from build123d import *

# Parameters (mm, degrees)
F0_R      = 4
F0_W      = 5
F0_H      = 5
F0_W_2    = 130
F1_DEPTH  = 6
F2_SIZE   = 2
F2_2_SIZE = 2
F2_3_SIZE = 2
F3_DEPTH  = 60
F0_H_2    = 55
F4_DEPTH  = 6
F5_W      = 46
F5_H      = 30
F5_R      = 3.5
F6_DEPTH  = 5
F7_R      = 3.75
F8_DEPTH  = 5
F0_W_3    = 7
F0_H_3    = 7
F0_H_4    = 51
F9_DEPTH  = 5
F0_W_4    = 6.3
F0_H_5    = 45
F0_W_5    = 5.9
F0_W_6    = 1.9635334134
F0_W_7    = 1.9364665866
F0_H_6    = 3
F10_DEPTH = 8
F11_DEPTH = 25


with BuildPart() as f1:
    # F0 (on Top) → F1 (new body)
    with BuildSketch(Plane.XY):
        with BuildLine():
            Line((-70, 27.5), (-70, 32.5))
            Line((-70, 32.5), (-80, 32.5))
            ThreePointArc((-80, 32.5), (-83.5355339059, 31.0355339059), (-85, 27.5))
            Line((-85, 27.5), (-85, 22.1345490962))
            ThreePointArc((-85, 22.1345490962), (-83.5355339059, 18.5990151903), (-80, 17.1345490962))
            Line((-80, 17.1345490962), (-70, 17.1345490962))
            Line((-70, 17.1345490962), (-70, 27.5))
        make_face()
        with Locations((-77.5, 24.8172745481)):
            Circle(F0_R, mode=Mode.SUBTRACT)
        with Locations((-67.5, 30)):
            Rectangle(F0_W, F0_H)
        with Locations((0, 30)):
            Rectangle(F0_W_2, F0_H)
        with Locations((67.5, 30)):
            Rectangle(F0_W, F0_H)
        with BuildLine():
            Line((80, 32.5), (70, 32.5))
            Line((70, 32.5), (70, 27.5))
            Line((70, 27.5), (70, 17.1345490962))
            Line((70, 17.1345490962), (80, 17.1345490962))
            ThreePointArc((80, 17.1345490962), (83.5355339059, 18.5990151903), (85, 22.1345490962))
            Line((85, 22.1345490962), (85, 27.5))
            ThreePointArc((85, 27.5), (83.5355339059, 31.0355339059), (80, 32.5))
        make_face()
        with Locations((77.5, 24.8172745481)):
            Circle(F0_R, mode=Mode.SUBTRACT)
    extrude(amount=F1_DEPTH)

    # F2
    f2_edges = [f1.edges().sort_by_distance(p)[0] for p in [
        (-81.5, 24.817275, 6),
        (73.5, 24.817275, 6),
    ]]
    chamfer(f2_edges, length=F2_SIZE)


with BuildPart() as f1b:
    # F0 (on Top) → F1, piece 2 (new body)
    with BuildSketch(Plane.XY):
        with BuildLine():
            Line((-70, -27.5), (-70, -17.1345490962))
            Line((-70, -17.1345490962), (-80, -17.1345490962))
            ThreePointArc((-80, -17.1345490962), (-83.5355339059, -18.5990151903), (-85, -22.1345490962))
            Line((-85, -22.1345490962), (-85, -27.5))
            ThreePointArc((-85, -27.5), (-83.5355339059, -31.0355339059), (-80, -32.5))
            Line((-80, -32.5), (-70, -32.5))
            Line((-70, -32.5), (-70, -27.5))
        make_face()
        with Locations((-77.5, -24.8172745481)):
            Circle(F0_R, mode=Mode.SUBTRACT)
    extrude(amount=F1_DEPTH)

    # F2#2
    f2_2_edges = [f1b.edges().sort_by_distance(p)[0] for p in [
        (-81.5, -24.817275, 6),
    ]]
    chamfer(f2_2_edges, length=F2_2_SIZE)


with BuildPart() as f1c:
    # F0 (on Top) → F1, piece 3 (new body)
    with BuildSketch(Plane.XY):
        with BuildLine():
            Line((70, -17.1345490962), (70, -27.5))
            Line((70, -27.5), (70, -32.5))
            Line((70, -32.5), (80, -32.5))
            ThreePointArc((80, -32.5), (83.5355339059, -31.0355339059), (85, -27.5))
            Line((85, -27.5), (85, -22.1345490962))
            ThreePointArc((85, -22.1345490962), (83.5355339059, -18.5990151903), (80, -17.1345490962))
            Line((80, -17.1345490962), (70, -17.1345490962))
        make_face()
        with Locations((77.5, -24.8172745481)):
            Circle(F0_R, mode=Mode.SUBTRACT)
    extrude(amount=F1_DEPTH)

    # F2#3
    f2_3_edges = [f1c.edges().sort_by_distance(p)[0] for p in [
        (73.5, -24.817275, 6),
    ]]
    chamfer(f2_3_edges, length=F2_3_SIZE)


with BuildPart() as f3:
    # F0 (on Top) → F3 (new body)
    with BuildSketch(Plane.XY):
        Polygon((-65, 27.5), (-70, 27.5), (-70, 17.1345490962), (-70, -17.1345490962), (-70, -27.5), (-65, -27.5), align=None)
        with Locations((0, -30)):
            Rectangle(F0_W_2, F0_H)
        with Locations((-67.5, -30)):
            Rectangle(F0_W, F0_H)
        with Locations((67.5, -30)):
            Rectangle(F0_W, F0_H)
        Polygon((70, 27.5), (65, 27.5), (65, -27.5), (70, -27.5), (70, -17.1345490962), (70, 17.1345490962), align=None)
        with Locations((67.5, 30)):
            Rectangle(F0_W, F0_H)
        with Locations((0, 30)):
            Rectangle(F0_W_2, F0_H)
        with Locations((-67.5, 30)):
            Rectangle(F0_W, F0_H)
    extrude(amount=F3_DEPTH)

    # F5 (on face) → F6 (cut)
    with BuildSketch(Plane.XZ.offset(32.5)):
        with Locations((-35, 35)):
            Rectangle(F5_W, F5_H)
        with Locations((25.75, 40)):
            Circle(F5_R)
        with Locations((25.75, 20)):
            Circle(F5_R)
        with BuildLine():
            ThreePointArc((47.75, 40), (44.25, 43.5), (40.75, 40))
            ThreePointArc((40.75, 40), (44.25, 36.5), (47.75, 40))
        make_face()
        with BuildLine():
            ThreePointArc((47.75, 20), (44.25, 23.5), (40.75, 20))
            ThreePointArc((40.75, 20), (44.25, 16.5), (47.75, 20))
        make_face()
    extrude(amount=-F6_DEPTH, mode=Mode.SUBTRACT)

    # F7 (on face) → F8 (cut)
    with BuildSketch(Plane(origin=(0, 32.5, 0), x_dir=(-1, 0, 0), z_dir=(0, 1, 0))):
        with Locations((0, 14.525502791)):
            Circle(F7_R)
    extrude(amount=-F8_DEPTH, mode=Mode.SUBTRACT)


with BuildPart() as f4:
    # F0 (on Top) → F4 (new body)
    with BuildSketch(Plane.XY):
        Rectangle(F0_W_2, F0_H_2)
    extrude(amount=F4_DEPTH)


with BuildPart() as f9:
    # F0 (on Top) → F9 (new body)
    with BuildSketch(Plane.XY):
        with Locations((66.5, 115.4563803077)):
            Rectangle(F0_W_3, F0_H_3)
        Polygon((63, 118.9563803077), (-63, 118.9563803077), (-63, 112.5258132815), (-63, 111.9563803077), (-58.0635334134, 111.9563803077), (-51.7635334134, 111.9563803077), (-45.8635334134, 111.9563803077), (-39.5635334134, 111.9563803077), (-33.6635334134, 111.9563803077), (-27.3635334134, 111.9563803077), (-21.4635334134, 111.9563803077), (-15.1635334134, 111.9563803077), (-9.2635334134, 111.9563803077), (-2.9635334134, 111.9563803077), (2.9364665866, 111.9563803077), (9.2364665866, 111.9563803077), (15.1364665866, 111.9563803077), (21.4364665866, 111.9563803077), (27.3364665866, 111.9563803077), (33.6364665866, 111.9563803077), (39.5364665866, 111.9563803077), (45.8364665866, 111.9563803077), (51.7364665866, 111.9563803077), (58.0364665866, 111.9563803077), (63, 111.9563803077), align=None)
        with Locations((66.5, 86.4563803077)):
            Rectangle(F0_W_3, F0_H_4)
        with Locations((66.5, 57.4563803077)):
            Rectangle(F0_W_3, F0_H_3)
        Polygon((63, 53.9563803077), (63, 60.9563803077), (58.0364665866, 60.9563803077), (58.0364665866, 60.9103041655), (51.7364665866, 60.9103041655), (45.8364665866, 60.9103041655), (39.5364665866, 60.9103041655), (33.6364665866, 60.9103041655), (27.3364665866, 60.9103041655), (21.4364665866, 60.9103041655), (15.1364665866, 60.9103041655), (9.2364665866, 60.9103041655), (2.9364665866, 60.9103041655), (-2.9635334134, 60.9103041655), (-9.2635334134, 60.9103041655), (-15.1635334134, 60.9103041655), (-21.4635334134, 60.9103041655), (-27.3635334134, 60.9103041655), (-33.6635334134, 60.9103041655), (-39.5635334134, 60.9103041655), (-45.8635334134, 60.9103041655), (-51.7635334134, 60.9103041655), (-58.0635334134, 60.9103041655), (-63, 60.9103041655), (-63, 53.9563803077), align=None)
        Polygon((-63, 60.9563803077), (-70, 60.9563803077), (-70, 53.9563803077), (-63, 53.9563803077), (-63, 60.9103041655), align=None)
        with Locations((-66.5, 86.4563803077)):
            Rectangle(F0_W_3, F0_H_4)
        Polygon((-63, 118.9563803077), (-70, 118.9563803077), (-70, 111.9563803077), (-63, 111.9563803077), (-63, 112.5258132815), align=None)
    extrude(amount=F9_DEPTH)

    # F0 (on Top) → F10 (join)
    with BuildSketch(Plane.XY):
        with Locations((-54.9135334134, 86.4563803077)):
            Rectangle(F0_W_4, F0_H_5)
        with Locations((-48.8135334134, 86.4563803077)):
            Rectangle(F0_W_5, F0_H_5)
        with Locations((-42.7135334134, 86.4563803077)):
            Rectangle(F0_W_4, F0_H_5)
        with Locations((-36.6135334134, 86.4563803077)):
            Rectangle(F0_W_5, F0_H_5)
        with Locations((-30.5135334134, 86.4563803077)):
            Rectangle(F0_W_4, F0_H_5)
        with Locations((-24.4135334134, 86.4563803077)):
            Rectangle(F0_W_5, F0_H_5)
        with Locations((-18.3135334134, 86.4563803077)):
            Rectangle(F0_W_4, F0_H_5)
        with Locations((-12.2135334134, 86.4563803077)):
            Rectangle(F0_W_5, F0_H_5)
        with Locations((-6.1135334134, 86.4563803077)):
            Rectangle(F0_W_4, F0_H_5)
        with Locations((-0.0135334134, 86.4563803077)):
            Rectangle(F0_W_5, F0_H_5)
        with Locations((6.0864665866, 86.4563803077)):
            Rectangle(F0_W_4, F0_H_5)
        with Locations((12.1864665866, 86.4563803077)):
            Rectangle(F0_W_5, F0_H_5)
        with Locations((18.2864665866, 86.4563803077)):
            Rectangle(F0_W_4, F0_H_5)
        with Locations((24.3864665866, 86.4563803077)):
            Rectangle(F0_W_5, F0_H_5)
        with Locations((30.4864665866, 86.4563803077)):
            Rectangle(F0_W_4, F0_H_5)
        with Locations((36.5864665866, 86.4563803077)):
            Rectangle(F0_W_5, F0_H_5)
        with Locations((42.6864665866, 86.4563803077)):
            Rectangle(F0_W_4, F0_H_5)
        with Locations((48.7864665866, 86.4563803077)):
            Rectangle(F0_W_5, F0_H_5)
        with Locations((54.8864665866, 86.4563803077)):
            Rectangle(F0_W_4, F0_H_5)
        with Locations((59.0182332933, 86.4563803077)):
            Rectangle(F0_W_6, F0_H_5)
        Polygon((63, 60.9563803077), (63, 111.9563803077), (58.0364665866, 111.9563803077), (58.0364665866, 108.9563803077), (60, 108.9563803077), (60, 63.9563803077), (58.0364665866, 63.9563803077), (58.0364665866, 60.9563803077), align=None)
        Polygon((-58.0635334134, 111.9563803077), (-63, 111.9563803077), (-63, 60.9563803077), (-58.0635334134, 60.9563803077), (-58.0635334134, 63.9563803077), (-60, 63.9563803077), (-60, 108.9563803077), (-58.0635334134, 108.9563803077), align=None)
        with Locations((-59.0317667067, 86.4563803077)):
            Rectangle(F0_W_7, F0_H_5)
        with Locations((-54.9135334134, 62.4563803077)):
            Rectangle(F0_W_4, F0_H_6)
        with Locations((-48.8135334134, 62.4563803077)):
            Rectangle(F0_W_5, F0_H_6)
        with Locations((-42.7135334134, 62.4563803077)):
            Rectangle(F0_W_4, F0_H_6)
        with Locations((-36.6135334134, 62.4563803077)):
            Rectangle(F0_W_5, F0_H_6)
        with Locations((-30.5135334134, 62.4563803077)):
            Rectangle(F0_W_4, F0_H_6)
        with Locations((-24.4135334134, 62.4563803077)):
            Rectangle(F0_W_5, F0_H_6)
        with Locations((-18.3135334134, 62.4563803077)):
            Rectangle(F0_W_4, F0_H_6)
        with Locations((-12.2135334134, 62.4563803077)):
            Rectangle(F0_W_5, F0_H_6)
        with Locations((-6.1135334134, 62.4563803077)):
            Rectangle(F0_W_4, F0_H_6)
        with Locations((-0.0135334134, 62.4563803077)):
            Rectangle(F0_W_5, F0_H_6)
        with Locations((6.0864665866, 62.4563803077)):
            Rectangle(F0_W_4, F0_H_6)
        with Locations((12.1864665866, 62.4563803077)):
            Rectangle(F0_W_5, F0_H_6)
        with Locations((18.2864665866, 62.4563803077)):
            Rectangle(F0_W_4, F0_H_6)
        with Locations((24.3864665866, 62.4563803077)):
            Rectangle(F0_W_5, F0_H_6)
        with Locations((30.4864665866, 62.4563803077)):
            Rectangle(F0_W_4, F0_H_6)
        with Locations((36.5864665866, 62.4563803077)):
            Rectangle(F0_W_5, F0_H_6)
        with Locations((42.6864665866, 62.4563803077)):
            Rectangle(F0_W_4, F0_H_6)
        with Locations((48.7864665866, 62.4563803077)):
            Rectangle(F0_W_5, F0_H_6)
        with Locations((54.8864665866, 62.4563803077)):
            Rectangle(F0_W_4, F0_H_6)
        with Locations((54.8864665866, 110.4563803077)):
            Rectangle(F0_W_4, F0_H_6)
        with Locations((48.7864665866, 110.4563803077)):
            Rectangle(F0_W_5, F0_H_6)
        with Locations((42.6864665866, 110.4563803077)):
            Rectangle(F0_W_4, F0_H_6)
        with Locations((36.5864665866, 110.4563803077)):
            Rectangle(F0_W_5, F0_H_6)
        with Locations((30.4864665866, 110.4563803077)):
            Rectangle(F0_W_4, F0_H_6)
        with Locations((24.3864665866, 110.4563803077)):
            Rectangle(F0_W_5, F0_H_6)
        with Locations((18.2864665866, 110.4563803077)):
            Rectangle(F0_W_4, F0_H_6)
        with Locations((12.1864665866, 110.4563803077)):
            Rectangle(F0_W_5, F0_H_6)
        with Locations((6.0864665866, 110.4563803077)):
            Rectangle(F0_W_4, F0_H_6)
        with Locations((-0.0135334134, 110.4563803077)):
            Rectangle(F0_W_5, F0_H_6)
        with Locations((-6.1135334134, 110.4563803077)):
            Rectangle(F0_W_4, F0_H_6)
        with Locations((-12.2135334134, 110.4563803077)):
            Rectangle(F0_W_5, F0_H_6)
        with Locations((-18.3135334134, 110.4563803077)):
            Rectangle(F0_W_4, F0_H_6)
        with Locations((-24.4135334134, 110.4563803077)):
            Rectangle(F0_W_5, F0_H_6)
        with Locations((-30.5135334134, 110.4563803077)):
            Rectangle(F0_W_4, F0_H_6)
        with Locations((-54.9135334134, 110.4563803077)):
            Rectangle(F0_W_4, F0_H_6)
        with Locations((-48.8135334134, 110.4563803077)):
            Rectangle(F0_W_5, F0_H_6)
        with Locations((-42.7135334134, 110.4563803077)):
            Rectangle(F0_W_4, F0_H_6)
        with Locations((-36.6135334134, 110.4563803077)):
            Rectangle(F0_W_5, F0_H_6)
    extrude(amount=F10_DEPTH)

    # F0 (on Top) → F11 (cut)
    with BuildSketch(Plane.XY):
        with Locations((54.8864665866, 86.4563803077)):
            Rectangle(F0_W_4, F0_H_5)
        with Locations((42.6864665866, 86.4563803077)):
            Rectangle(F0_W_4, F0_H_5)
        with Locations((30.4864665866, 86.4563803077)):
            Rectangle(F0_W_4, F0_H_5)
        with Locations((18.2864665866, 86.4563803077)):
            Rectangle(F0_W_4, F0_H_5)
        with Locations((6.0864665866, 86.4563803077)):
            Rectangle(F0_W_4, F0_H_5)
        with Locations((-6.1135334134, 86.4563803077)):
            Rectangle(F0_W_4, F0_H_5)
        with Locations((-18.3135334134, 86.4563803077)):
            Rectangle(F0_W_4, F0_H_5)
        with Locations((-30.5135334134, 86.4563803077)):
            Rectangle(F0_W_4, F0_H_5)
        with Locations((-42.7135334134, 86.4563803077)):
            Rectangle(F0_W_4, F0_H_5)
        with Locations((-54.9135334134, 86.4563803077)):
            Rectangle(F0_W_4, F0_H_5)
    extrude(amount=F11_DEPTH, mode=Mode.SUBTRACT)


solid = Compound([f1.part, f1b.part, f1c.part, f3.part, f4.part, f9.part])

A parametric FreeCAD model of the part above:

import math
import FreeCAD as App
import Part
import Sketcher
Q = App.Units.Quantity


def edges_at(feature, points):
    """Names of the edges that pass closest to the given points."""
    edges = feature.Shape.Edges
    near = lambda p: min(range(len(edges)), key=lambda i: edges[i].distToShape(Part.Vertex(*p))[0])
    return sorted({f"Edge{near(p) + 1}" for p in points})

doc = App.newDocument("Part")
body = doc.addObject("PartDesign::Body", "Body")

sketch1 = body.newObject("Sketcher::SketchObject", "Sketch")
sketch1.AttachmentSupport = (doc.getObject("XY_Plane"), [""])
sketch1.MapMode = "FlatFace"
sketch1.addGeometry([
    Part.ArcOfCircle(Part.Circle(App.Vector(-80, 27.5, 0), App.Vector(0, 0, 1), 5), math.radians(90), math.radians(180)),
    Part.LineSegment(App.Vector(-85, 27.5, 0), App.Vector(-85, 22.134549, 0)),
    Part.ArcOfCircle(Part.Circle(App.Vector(-80, 22.134549, 0), App.Vector(0, 0, 1), 5), math.radians(180), math.radians(270)),
    Part.LineSegment(App.Vector(-80, 17.134549, 0), App.Vector(-70, 17.134549, 0)),
    Part.LineSegment(App.Vector(-70, 17.134549, 0), App.Vector(-70, 27.5, 0)),
    Part.LineSegment(App.Vector(-70, 27.5, 0), App.Vector(70, 27.5, 0)),
    Part.LineSegment(App.Vector(70, 27.5, 0), App.Vector(70, 17.134549, 0)),
    Part.LineSegment(App.Vector(70, 17.134549, 0), App.Vector(80, 17.134549, 0)),
    Part.ArcOfCircle(Part.Circle(App.Vector(80, 22.134549, 0), App.Vector(0, 0, 1), 5), math.radians(-90), math.radians(0)),
    Part.LineSegment(App.Vector(85, 22.134549, 0), App.Vector(85, 27.5, 0)),
    Part.ArcOfCircle(Part.Circle(App.Vector(80, 27.5, 0), App.Vector(0, 0, 1), 5), math.radians(0), math.radians(90)),
    Part.LineSegment(App.Vector(80, 32.5, 0), App.Vector(-80, 32.5, 0)),
    Part.Circle(App.Vector(-77.5, 24.817275, 0), App.Vector(0, 0, 1), 4),
    Part.Circle(App.Vector(77.5, 24.817275, 0), App.Vector(0, 0, 1), 4),
], False)
sketch1.addConstraint([
    Sketcher.Constraint("Tangent", 0, 2, 1, 1),
    Sketcher.Constraint("Tangent", 1, 2, 2, 1),
    Sketcher.Constraint("Tangent", 2, 2, 3, 1),
    Sketcher.Constraint("Coincident", 3, 2, 4, 1),
    Sketcher.Constraint("Coincident", 4, 2, 5, 1),
    Sketcher.Constraint("Coincident", 5, 2, 6, 1),
    Sketcher.Constraint("Coincident", 6, 2, 7, 1),
    Sketcher.Constraint("Tangent", 7, 2, 8, 1),
    Sketcher.Constraint("Tangent", 8, 2, 9, 1),
    Sketcher.Constraint("Tangent", 9, 2, 10, 1),
    Sketcher.Constraint("Tangent", 10, 2, 11, 1),
    Sketcher.Constraint("Tangent", 11, 2, 0, 1),
    Sketcher.Constraint("Vertical", 1),
    Sketcher.Constraint("Horizontal", 3),
    Sketcher.Constraint("Vertical", 4),
    Sketcher.Constraint("Horizontal", 5),
    Sketcher.Constraint("Vertical", 6),
    Sketcher.Constraint("Horizontal", 7),
    Sketcher.Constraint("Vertical", 9),
    Sketcher.Constraint("Horizontal", 11),
    Sketcher.Constraint("Equal", 0, 2),
    Sketcher.Constraint("Equal", 2, 8),
    Sketcher.Constraint("Equal", 8, 10),
    Sketcher.Constraint("Equal", 12, 13),
    Sketcher.Constraint("Symmetric", 2, 3, 8, 3, -2),
    Sketcher.Constraint("Symmetric", 12, 3, 13, 3, -2),
    Sketcher.Constraint("Horizontal", 0, 2, 4, 2),
    Sketcher.Constraint("Equal", 3, 7),
    Sketcher.Constraint("Diameter", 12, Q("8 mm")),
    Sketcher.Constraint("Radius", 0, Q("5 mm")),
    Sketcher.Constraint("DistanceX", 3, 1, 3, 2, Q("10 mm")),
    Sketcher.Constraint("DistanceX", 5, 1, 5, 2, Q("140 mm")),
    Sketcher.Constraint("DistanceX", 12, 3, 13, 3, Q("155 mm")),
    Sketcher.Constraint("DistanceY", -1, 1, 0, 3, Q("27.5 mm")),
    Sketcher.Constraint("DistanceY", 1, 2, 1, 1, Q("5.365451 mm")),
    Sketcher.Constraint("DistanceY", -1, 1, 12, 3, Q("24.817275 mm")),
])
pad1 = body.newObject("PartDesign::Pad", "Pad")
pad1.Profile = sketch1
pad1.Length = 6
doc.recompute()

chamfer = body.newObject("PartDesign::Chamfer", "Chamfer")
chamfer.Base = (pad1, edges_at(pad1, [(-81.5, 24.817, 6), (73.5, 24.817, 6)]))
chamfer.Size = 2
body2 = doc.addObject("PartDesign::Body", "Body001")

sketch2 = body2.newObject("Sketcher::SketchObject", "Sketch001")
sketch2.AttachmentSupport = (doc.getObject("XY_Plane001"), [""])
sketch2.MapMode = "FlatFace"
sketch2.addGeometry([
    Part.LineSegment(App.Vector(-70, -17.134549, 0), App.Vector(-80, -17.134549, 0)),
    Part.ArcOfCircle(Part.Circle(App.Vector(-80, -22.134549, 0), App.Vector(0, 0, 1), 5), math.radians(90), math.radians(180)),
    Part.LineSegment(App.Vector(-85, -22.134549, 0), App.Vector(-85, -27.5, 0)),
    Part.ArcOfCircle(Part.Circle(App.Vector(-80, -27.5, 0), App.Vector(0, 0, 1), 5), math.radians(180), math.radians(270)),
    Part.LineSegment(App.Vector(-80, -32.5, 0), App.Vector(-70, -32.5, 0)),
    Part.LineSegment(App.Vector(-70, -32.5, 0), App.Vector(-70, -17.134549, 0)),
    Part.Circle(App.Vector(-77.5, -24.817275, 0), App.Vector(0, 0, 1), 4),
], False)
sketch2.addConstraint([
    Sketcher.Constraint("Tangent", 0, 2, 1, 1),
    Sketcher.Constraint("Tangent", 1, 2, 2, 1),
    Sketcher.Constraint("Tangent", 2, 2, 3, 1),
    Sketcher.Constraint("Tangent", 3, 2, 4, 1),
    Sketcher.Constraint("Coincident", 4, 2, 5, 1),
    Sketcher.Constraint("Coincident", 5, 2, 0, 1),
    Sketcher.Constraint("Horizontal", 0),
    Sketcher.Constraint("Vertical", 2),
    Sketcher.Constraint("Horizontal", 4),
    Sketcher.Constraint("Vertical", 5),
    Sketcher.Constraint("Equal", 1, 3),
    Sketcher.Constraint("Diameter", 6, Q("8 mm")),
    Sketcher.Constraint("Radius", 1, Q("5 mm")),
    Sketcher.Constraint("DistanceX", 0, 2, 0, 1, Q("10 mm")),
    Sketcher.Constraint("DistanceX", 1, 3, -1, 1, Q("80 mm")),
    Sketcher.Constraint("DistanceY", 3, 3, -1, 1, Q("27.5 mm")),
    Sketcher.Constraint("DistanceX", 6, 3, -1, 1, Q("77.5 mm")),
    Sketcher.Constraint("DistanceY", 2, 2, 2, 1, Q("5.365451 mm")),
    Sketcher.Constraint("DistanceY", 6, 3, -1, 1, Q("24.817275 mm")),
])
pad2 = body2.newObject("PartDesign::Pad", "Pad001")
pad2.Profile = sketch2
pad2.Length = 6
doc.recompute()

chamfer2 = body2.newObject("PartDesign::Chamfer", "Chamfer001")
chamfer2.Base = (pad2, edges_at(pad2, [(-81.5, -24.817, 6)]))
chamfer2.Size = 2
body3 = doc.addObject("PartDesign::Body", "Body002")

sketch3 = body3.newObject("Sketcher::SketchObject", "Sketch002")
sketch3.AttachmentSupport = (doc.getObject("XY_Plane002"), [""])
sketch3.MapMode = "FlatFace"
sketch3.addGeometry([
    Part.LineSegment(App.Vector(70, -17.134549, 0), App.Vector(70, -32.5, 0)),
    Part.LineSegment(App.Vector(70, -32.5, 0), App.Vector(80, -32.5, 0)),
    Part.ArcOfCircle(Part.Circle(App.Vector(80, -27.5, 0), App.Vector(0, 0, 1), 5), math.radians(-90), math.radians(0)),
    Part.LineSegment(App.Vector(85, -27.5, 0), App.Vector(85, -22.134549, 0)),
    Part.ArcOfCircle(Part.Circle(App.Vector(80, -22.134549, 0), App.Vector(0, 0, 1), 5), math.radians(0), math.radians(90)),
    Part.LineSegment(App.Vector(80, -17.134549, 0), App.Vector(70, -17.134549, 0)),
    Part.Circle(App.Vector(77.5, -24.817275, 0), App.Vector(0, 0, 1), 4),
], False)
sketch3.addConstraint([
    Sketcher.Constraint("Coincident", 0, 2, 1, 1),
    Sketcher.Constraint("Tangent", 1, 2, 2, 1),
    Sketcher.Constraint("Tangent", 2, 2, 3, 1),
    Sketcher.Constraint("Tangent", 3, 2, 4, 1),
    Sketcher.Constraint("Tangent", 4, 2, 5, 1),
    Sketcher.Constraint("Coincident", 5, 2, 0, 1),
    Sketcher.Constraint("Vertical", 0),
    Sketcher.Constraint("Horizontal", 1),
    Sketcher.Constraint("Vertical", 3),
    Sketcher.Constraint("Horizontal", 5),
    Sketcher.Constraint("Equal", 2, 4),
    Sketcher.Constraint("Diameter", 6, Q("8 mm")),
    Sketcher.Constraint("Radius", 2, Q("5 mm")),
    Sketcher.Constraint("DistanceX", 1, 1, 1, 2, Q("10 mm")),
    Sketcher.Constraint("DistanceX", -1, 1, 2, 3, Q("80 mm")),
    Sketcher.Constraint("DistanceY", 2, 3, -1, 1, Q("27.5 mm")),
    Sketcher.Constraint("DistanceX", -1, 1, 6, 3, Q("77.5 mm")),
    Sketcher.Constraint("DistanceY", 0, 2, 0, 1, Q("15.365451 mm")),
    Sketcher.Constraint("DistanceY", 6, 3, -1, 1, Q("24.817275 mm")),
])
pad3 = body3.newObject("PartDesign::Pad", "Pad002")
pad3.Profile = sketch3
pad3.Length = 6
doc.recompute()

chamfer3 = body3.newObject("PartDesign::Chamfer", "Chamfer002")
chamfer3.Base = (pad3, edges_at(pad3, [(73.5, -24.817, 6)]))
chamfer3.Size = 2
body4 = doc.addObject("PartDesign::Body", "Body003")

sketch4 = body4.newObject("Sketcher::SketchObject", "Sketch003")
sketch4.AttachmentSupport = (doc.getObject("XY_Plane003"), [""])
sketch4.MapMode = "FlatFace"
sketch4.addGeometry([
    Part.LineSegment(App.Vector(70, 32.5, 0), App.Vector(-70, 32.5, 0)),
    Part.LineSegment(App.Vector(-70, 32.5, 0), App.Vector(-70, -32.5, 0)),
    Part.LineSegment(App.Vector(-70, -32.5, 0), App.Vector(70, -32.5, 0)),
    Part.LineSegment(App.Vector(70, -32.5, 0), App.Vector(70, 32.5, 0)),
    Part.LineSegment(App.Vector(-65, -27.5, 0), App.Vector(-65, 27.5, 0)),
    Part.LineSegment(App.Vector(-65, 27.5, 0), App.Vector(65, 27.5, 0)),
    Part.LineSegment(App.Vector(65, 27.5, 0), App.Vector(65, -27.5, 0)),
    Part.LineSegment(App.Vector(65, -27.5, 0), App.Vector(-65, -27.5, 0)),
], False)
sketch4.addConstraint([
    Sketcher.Constraint("Coincident", 0, 2, 1, 1),
    Sketcher.Constraint("Coincident", 1, 2, 2, 1),
    Sketcher.Constraint("Coincident", 2, 2, 3, 1),
    Sketcher.Constraint("Coincident", 3, 2, 0, 1),
    Sketcher.Constraint("Coincident", 4, 2, 5, 1),
    Sketcher.Constraint("Coincident", 5, 2, 6, 1),
    Sketcher.Constraint("Coincident", 6, 2, 7, 1),
    Sketcher.Constraint("Coincident", 7, 2, 4, 1),
    Sketcher.Constraint("Horizontal", 0),
    Sketcher.Constraint("Vertical", 1),
    Sketcher.Constraint("Horizontal", 2),
    Sketcher.Constraint("Vertical", 3),
    Sketcher.Constraint("Vertical", 4),
    Sketcher.Constraint("Horizontal", 5),
    Sketcher.Constraint("Vertical", 6),
    Sketcher.Constraint("Horizontal", 7),
    Sketcher.Constraint("Symmetric", 0, 2, 2, 2, -1, 1),
    Sketcher.Constraint("Symmetric", 4, 2, 6, 2, -1, 1),
    Sketcher.Constraint("DistanceX", 0, 2, 0, 1, Q("140 mm")),
    Sketcher.Constraint("DistanceX", 5, 1, 5, 2, Q("130 mm")),
    Sketcher.Constraint("DistanceY", 1, 2, 1, 1, Q("65 mm")),
    Sketcher.Constraint("DistanceY", 4, 1, 4, 2, Q("55 mm")),
])
pad4 = body4.newObject("PartDesign::Pad", "Pad003")
pad4.Profile = sketch4
pad4.Length = 60

sketch5 = body4.newObject("Sketcher::SketchObject", "Sketch004")
sketch5.AttachmentSupport = (doc.getObject("XZ_Plane003"), [""])
sketch5.MapMode = "FlatFace"
sketch5.AttachmentOffset = App.Placement(App.Vector(0, 0, 32.5), App.Rotation())
sketch5.addGeometry([
    Part.LineSegment(App.Vector(-58, 50, 0), App.Vector(-58, 20, 0)),
    Part.LineSegment(App.Vector(-58, 20, 0), App.Vector(-12, 20, 0)),
    Part.LineSegment(App.Vector(-12, 20, 0), App.Vector(-12, 50, 0)),
    Part.LineSegment(App.Vector(-12, 50, 0), App.Vector(-58, 50, 0)),
    Part.Circle(App.Vector(25.75, 40, 0), App.Vector(0, 0, 1), 3.5),
    Part.Circle(App.Vector(25.75, 20, 0), App.Vector(0, 0, 1), 3.5),
    Part.Circle(App.Vector(44.25, 40, 0), App.Vector(0, 0, 1), 3.5),
    Part.Circle(App.Vector(44.25, 20, 0), App.Vector(0, 0, 1), 3.5),
], False)
sketch5.addConstraint([
    Sketcher.Constraint("Coincident", 0, 2, 1, 1),
    Sketcher.Constraint("Coincident", 1, 2, 2, 1),
    Sketcher.Constraint("Coincident", 2, 2, 3, 1),
    Sketcher.Constraint("Coincident", 3, 2, 0, 1),
    Sketcher.Constraint("Vertical", 0),
    Sketcher.Constraint("Horizontal", 1),
    Sketcher.Constraint("Vertical", 2),
    Sketcher.Constraint("Horizontal", 3),
    Sketcher.Constraint("Equal", 4, 5),
    Sketcher.Constraint("Equal", 5, 6),
    Sketcher.Constraint("Equal", 6, 7),
    Sketcher.Constraint("Horizontal", 4, 3, 6, 3),
    Sketcher.Constraint("Horizontal", 5, 3, 7, 3),
    Sketcher.Constraint("Horizontal", 7, 3, 0, 2),
    Sketcher.Constraint("Vertical", 4, 3, 5, 3),
    Sketcher.Constraint("Vertical", 6, 3, 7, 3),
    Sketcher.Constraint("Diameter", 4, Q("7 mm")),
    Sketcher.Constraint("DistanceX", 1, 1, 1, 2, Q("46 mm")),
    Sketcher.Constraint("DistanceY", 0, 2, 0, 1, Q("30 mm")),
    Sketcher.Constraint("DistanceY", -1, 1, 4, 3, Q("40 mm")),
    Sketcher.Constraint("DistanceY", -1, 1, 5, 3, Q("20 mm")),
    Sketcher.Constraint("DistanceX", 0, 2, -1, 1, Q("58 mm")),
    Sketcher.Constraint("DistanceX", 4, 3, 6, 3, Q("18.5 mm")),
    Sketcher.Constraint("DistanceX", -1, 1, 4, 3, Q("25.75 mm")),
])
pocket1 = body4.newObject("PartDesign::Pocket", "Pocket")
pocket1.Profile = sketch5
pocket1.Length = 5

sketch6 = body4.newObject("Sketcher::SketchObject", "Sketch005")
sketch6.AttachmentSupport = (doc.getObject("XZ_Plane003"), [""])
sketch6.MapMode = "FlatFace"
sketch6.AttachmentOffset = App.Placement(App.Vector(0, 0, -32.5), App.Rotation())
sketch6.addGeometry(Part.Circle(App.Vector(0, 14.525503, 0), App.Vector(0, 0, 1), 3.75), False)
sketch6.addConstraint([
    Sketcher.Constraint("PointOnObject", 0, 3, -2),
    Sketcher.Constraint("Diameter", 0, Q("7.5 mm")),
    Sketcher.Constraint("DistanceY", -1, 1, 0, 3, Q("14.525503 mm")),
])
pocket2 = body4.newObject("PartDesign::Pocket", "Pocket001")
pocket2.Profile = sketch6
pocket2.Length = 5
pocket2.Reversed = True
body5 = doc.addObject("PartDesign::Body", "Body004")

sketch7 = body5.newObject("Sketcher::SketchObject", "Sketch006")
sketch7.AttachmentSupport = (doc.getObject("XY_Plane004"), [""])
sketch7.MapMode = "FlatFace"
sketch7.addGeometry([
    Part.LineSegment(App.Vector(-65, 27.5, 0), App.Vector(-65, -27.5, 0)),
    Part.LineSegment(App.Vector(-65, -27.5, 0), App.Vector(65, -27.5, 0)),
    Part.LineSegment(App.Vector(65, -27.5, 0), App.Vector(65, 27.5, 0)),
    Part.LineSegment(App.Vector(65, 27.5, 0), App.Vector(-65, 27.5, 0)),
], False)
sketch7.addConstraint([
    Sketcher.Constraint("Coincident", 0, 2, 1, 1),
    Sketcher.Constraint("Coincident", 1, 2, 2, 1),
    Sketcher.Constraint("Coincident", 2, 2, 3, 1),
    Sketcher.Constraint("Coincident", 3, 2, 0, 1),
    Sketcher.Constraint("Vertical", 0),
    Sketcher.Constraint("Horizontal", 1),
    Sketcher.Constraint("Vertical", 2),
    Sketcher.Constraint("Horizontal", 3),
    Sketcher.Constraint("Symmetric", 0, 2, 2, 2, -1, 1),
    Sketcher.Constraint("DistanceX", 1, 1, 1, 2, Q("130 mm")),
    Sketcher.Constraint("DistanceY", 0, 2, 0, 1, Q("55 mm")),
])
pad5 = body5.newObject("PartDesign::Pad", "Pad004")
pad5.Profile = sketch7
pad5.Length = 6
body6 = doc.addObject("PartDesign::Body", "Body005")

sketch8 = body6.newObject("Sketcher::SketchObject", "Sketch007")
sketch8.AttachmentSupport = (doc.getObject("XY_Plane005"), [""])
sketch8.MapMode = "FlatFace"
sketch8.addGeometry([
    Part.LineSegment(App.Vector(70, 118.95638, 0), App.Vector(-70, 118.95638, 0)),
    Part.LineSegment(App.Vector(-70, 118.95638, 0), App.Vector(-70, 53.95638, 0)),
    Part.LineSegment(App.Vector(-70, 53.95638, 0), App.Vector(70, 53.95638, 0)),
    Part.LineSegment(App.Vector(70, 53.95638, 0), App.Vector(70, 118.95638, 0)),
    Part.LineSegment(App.Vector(-63, 60.910304, 0), App.Vector(-63, 111.95638, 0)),
    Part.LineSegment(App.Vector(-63, 111.95638, 0), App.Vector(63, 111.95638, 0)),
    Part.LineSegment(App.Vector(63, 111.95638, 0), App.Vector(63, 60.95638, 0)),
    Part.LineSegment(App.Vector(63, 60.95638, 0), App.Vector(58.036467, 60.95638, 0)),
    Part.LineSegment(App.Vector(58.036467, 60.95638, 0), App.Vector(58.036467, 60.910304, 0)),
    Part.LineSegment(App.Vector(58.036467, 60.910304, 0), App.Vector(-63, 60.910304, 0)),
], False)
sketch8.addConstraint([
    Sketcher.Constraint("Coincident", 0, 2, 1, 1),
    Sketcher.Constraint("Coincident", 1, 2, 2, 1),
    Sketcher.Constraint("Coincident", 2, 2, 3, 1),
    Sketcher.Constraint("Coincident", 3, 2, 0, 1),
    Sketcher.Constraint("Coincident", 4, 2, 5, 1),
    Sketcher.Constraint("Coincident", 5, 2, 6, 1),
    Sketcher.Constraint("Coincident", 6, 2, 7, 1),
    Sketcher.Constraint("Coincident", 7, 2, 8, 1),
    Sketcher.Constraint("Coincident", 8, 2, 9, 1),
    Sketcher.Constraint("Coincident", 9, 2, 4, 1),
    Sketcher.Constraint("Horizontal", 0),
    Sketcher.Constraint("Vertical", 1),
    Sketcher.Constraint("Horizontal", 2),
    Sketcher.Constraint("Vertical", 3),
    Sketcher.Constraint("Vertical", 4),
    Sketcher.Constraint("Horizontal", 5),
    Sketcher.Constraint("Vertical", 6),
    Sketcher.Constraint("Horizontal", 7),
    Sketcher.Constraint("Vertical", 8),
    Sketcher.Constraint("Horizontal", 9),
    Sketcher.Constraint("DistanceX", 0, 2, 0, 1, Q("140 mm")),
    Sketcher.Constraint("DistanceX", 5, 1, 5, 2, Q("126 mm")),
    Sketcher.Constraint("DistanceY", 1, 2, 1, 1, Q("65 mm")),
    Sketcher.Constraint("DistanceY", 6, 2, 6, 1, Q("51 mm")),
    Sketcher.Constraint("DistanceX", 0, 2, -1, 1, Q("70 mm")),
    Sketcher.Constraint("DistanceX", 4, 2, -1, 1, Q("63 mm")),
    Sketcher.Constraint("DistanceY", 4, 2, 0, 2, Q("7 mm")),
    Sketcher.Constraint("DistanceX", 7, 2, 7, 1, Q("4.963533 mm")),
    Sketcher.Constraint("DistanceY", 4, 1, 4, 2, Q("51.046076 mm")),
    Sketcher.Constraint("DistanceY", -1, 1, 0, 2, Q("118.95638 mm")),
])
pad6 = body6.newObject("PartDesign::Pad", "Pad005")
pad6.Profile = sketch8
pad6.Length = 5

sketch9 = body6.newObject("Sketcher::SketchObject", "Sketch008")
sketch9.AttachmentSupport = (doc.getObject("XY_Plane005"), [""])
sketch9.MapMode = "FlatFace"
sketch9.addGeometry([
    Part.LineSegment(App.Vector(63, 60.95638, 0), App.Vector(63, 111.95638, 0)),
    Part.LineSegment(App.Vector(63, 111.95638, 0), App.Vector(-63, 111.95638, 0)),
    Part.LineSegment(App.Vector(-63, 111.95638, 0), App.Vector(-63, 60.95638, 0)),
    Part.LineSegment(App.Vector(-63, 60.95638, 0), App.Vector(63, 60.95638, 0)),
], False)
sketch9.addConstraint([
    Sketcher.Constraint("Coincident", 0, 2, 1, 1),
    Sketcher.Constraint("Coincident", 1, 2, 2, 1),
    Sketcher.Constraint("Coincident", 2, 2, 3, 1),
    Sketcher.Constraint("Coincident", 3, 2, 0, 1),
    Sketcher.Constraint("Vertical", 0),
    Sketcher.Constraint("Horizontal", 1),
    Sketcher.Constraint("Vertical", 2),
    Sketcher.Constraint("Horizontal", 3),
    Sketcher.Constraint("DistanceX", 1, 2, 1, 1, Q("126 mm")),
    Sketcher.Constraint("DistanceY", 0, 1, 0, 2, Q("51 mm")),
    Sketcher.Constraint("DistanceX", -1, 1, 0, 2, Q("63 mm")),
    Sketcher.Constraint("DistanceY", -1, 1, 0, 2, Q("111.95638 mm")),
])
pad7 = body6.newObject("PartDesign::Pad", "Pad006")
pad7.Profile = sketch9
pad7.Length = 8

sketch10 = body6.newObject("Sketcher::SketchObject", "Sketch009")
sketch10.AttachmentSupport = (doc.getObject("XY_Plane005"), [""])
sketch10.MapMode = "FlatFace"
sketch10.addGeometry([
    Part.LineSegment(App.Vector(51.736467, 108.95638, 0), App.Vector(51.736467, 63.95638, 0)),
    Part.LineSegment(App.Vector(51.736467, 63.95638, 0), App.Vector(58.036467, 63.95638, 0)),
    Part.LineSegment(App.Vector(58.036467, 63.95638, 0), App.Vector(58.036467, 108.95638, 0)),
    Part.LineSegment(App.Vector(58.036467, 108.95638, 0), App.Vector(51.736467, 108.95638, 0)),
    Part.LineSegment(App.Vector(39.536467, 108.95638, 0), App.Vector(39.536467, 63.95638, 0)),
    Part.LineSegment(App.Vector(39.536467, 63.95638, 0), App.Vector(45.836467, 63.95638, 0)),
    Part.LineSegment(App.Vector(45.836467, 63.95638, 0), App.Vector(45.836467, 108.95638, 0)),
    Part.LineSegment(App.Vector(45.836467, 108.95638, 0), App.Vector(39.536467, 108.95638, 0)),
    Part.LineSegment(App.Vector(27.336467, 108.95638, 0), App.Vector(27.336467, 63.95638, 0)),
    Part.LineSegment(App.Vector(27.336467, 63.95638, 0), App.Vector(33.636467, 63.95638, 0)),
    Part.LineSegment(App.Vector(33.636467, 63.95638, 0), App.Vector(33.636467, 108.95638, 0)),
    Part.LineSegment(App.Vector(33.636467, 108.95638, 0), App.Vector(27.336467, 108.95638, 0)),
    Part.LineSegment(App.Vector(15.136467, 108.95638, 0), App.Vector(15.136467, 63.95638, 0)),
    Part.LineSegment(App.Vector(15.136467, 63.95638, 0), App.Vector(21.436467, 63.95638, 0)),
    Part.LineSegment(App.Vector(21.436467, 63.95638, 0), App.Vector(21.436467, 108.95638, 0)),
    Part.LineSegment(App.Vector(21.436467, 108.95638, 0), App.Vector(15.136467, 108.95638, 0)),
    Part.LineSegment(App.Vector(2.936467, 108.95638, 0), App.Vector(2.936467, 63.95638, 0)),
    Part.LineSegment(App.Vector(2.936467, 63.95638, 0), App.Vector(9.236467, 63.95638, 0)),
    Part.LineSegment(App.Vector(9.236467, 63.95638, 0), App.Vector(9.236467, 108.95638, 0)),
    Part.LineSegment(App.Vector(9.236467, 108.95638, 0), App.Vector(2.936467, 108.95638, 0)),
    Part.LineSegment(App.Vector(-9.263533, 108.95638, 0), App.Vector(-9.263533, 63.95638, 0)),
    Part.LineSegment(App.Vector(-9.263533, 63.95638, 0), App.Vector(-2.963533, 63.95638, 0)),
    Part.LineSegment(App.Vector(-2.963533, 63.95638, 0), App.Vector(-2.963533, 108.95638, 0)),
    Part.LineSegment(App.Vector(-2.963533, 108.95638, 0), App.Vector(-9.263533, 108.95638, 0)),
    Part.LineSegment(App.Vector(-21.463533, 108.95638, 0), App.Vector(-21.463533, 63.95638, 0)),
    Part.LineSegment(App.Vector(-21.463533, 63.95638, 0), App.Vector(-15.163533, 63.95638, 0)),
    Part.LineSegment(App.Vector(-15.163533, 63.95638, 0), App.Vector(-15.163533, 108.95638, 0)),
    Part.LineSegment(App.Vector(-15.163533, 108.95638, 0), App.Vector(-21.463533, 108.95638, 0)),
    Part.LineSegment(App.Vector(-33.663533, 108.95638, 0), App.Vector(-33.663533, 63.95638, 0)),
    Part.LineSegment(App.Vector(-33.663533, 63.95638, 0), App.Vector(-27.363533, 63.95638, 0)),
    Part.LineSegment(App.Vector(-27.363533, 63.95638, 0), App.Vector(-27.363533, 108.95638, 0)),
    Part.LineSegment(App.Vector(-27.363533, 108.95638, 0), App.Vector(-33.663533, 108.95638, 0)),
    Part.LineSegment(App.Vector(-45.863533, 108.95638, 0), App.Vector(-45.863533, 63.95638, 0)),
    Part.LineSegment(App.Vector(-45.863533, 63.95638, 0), App.Vector(-39.563533, 63.95638, 0)),
    Part.LineSegment(App.Vector(-39.563533, 63.95638, 0), App.Vector(-39.563533, 108.95638, 0)),
    Part.LineSegment(App.Vector(-39.563533, 108.95638, 0), App.Vector(-45.863533, 108.95638, 0)),
    Part.LineSegment(App.Vector(-58.063533, 108.95638, 0), App.Vector(-58.063533, 63.95638, 0)),
    Part.LineSegment(App.Vector(-58.063533, 63.95638, 0), App.Vector(-51.763533, 63.95638, 0)),
    Part.LineSegment(App.Vector(-51.763533, 63.95638, 0), App.Vector(-51.763533, 108.95638, 0)),
    Part.LineSegment(App.Vector(-51.763533, 108.95638, 0), App.Vector(-58.063533, 108.95638, 0)),
], False)
sketch10.addConstraint([
    Sketcher.Constraint("Coincident", 0, 2, 1, 1),
    Sketcher.Constraint("Coincident", 1, 2, 2, 1),
    Sketcher.Constraint("Coincident", 2, 2, 3, 1),
    Sketcher.Constraint("Coincident", 3, 2, 0, 1),
    Sketcher.Constraint("Coincident", 4, 2, 5, 1),
    Sketcher.Constraint("Coincident", 5, 2, 6, 1),
    Sketcher.Constraint("Coincident", 6, 2, 7, 1),
    Sketcher.Constraint("Coincident", 7, 2, 4, 1),
    Sketcher.Constraint("Coincident", 8, 2, 9, 1),
    Sketcher.Constraint("Coincident", 9, 2, 10, 1),
    Sketcher.Constraint("Coincident", 10, 2, 11, 1),
    Sketcher.Constraint("Coincident", 11, 2, 8, 1),
    Sketcher.Constraint("Coincident", 12, 2, 13, 1),
    Sketcher.Constraint("Coincident", 13, 2, 14, 1),
    Sketcher.Constraint("Coincident", 14, 2, 15, 1),
    Sketcher.Constraint("Coincident", 15, 2, 12, 1),
    Sketcher.Constraint("Coincident", 16, 2, 17, 1),
    Sketcher.Constraint("Coincident", 17, 2, 18, 1),
    Sketcher.Constraint("Coincident", 18, 2, 19, 1),
    Sketcher.Constraint("Coincident", 19, 2, 16, 1),
    Sketcher.Constraint("Coincident", 20, 2, 21, 1),
    Sketcher.Constraint("Coincident", 21, 2, 22, 1),
    Sketcher.Constraint("Coincident", 22, 2, 23, 1),
    Sketcher.Constraint("Coincident", 23, 2, 20, 1),
    Sketcher.Constraint("Coincident", 24, 2, 25, 1),
    Sketcher.Constraint("Coincident", 25, 2, 26, 1),
    Sketcher.Constraint("Coincident", 26, 2, 27, 1),
    Sketcher.Constraint("Coincident", 27, 2, 24, 1),
    Sketcher.Constraint("Coincident", 28, 2, 29, 1),
    Sketcher.Constraint("Coincident", 29, 2, 30, 1),
    Sketcher.Constraint("Coincident", 30, 2, 31, 1),
    Sketcher.Constraint("Coincident", 31, 2, 28, 1),
    Sketcher.Constraint("Coincident", 32, 2, 33, 1),
    Sketcher.Constraint("Coincident", 33, 2, 34, 1),
    Sketcher.Constraint("Coincident", 34, 2, 35, 1),
    Sketcher.Constraint("Coincident", 35, 2, 32, 1),
    Sketcher.Constraint("Coincident", 36, 2, 37, 1),
    Sketcher.Constraint("Coincident", 37, 2, 38, 1),
    Sketcher.Constraint("Coincident", 38, 2, 39, 1),
    Sketcher.Constraint("Coincident", 39, 2, 36, 1),
    Sketcher.Constraint("Vertical", 0),
    Sketcher.Constraint("Horizontal", 1),
    Sketcher.Constraint("Vertical", 2),
    Sketcher.Constraint("Horizontal", 3),
    Sketcher.Constraint("Vertical", 4),
    Sketcher.Constraint("Horizontal", 5),
    Sketcher.Constraint("Vertical", 6),
    Sketcher.Constraint("Horizontal", 7),
    Sketcher.Constraint("Vertical", 8),
    Sketcher.Constraint("Horizontal", 9),
    Sketcher.Constraint("Vertical", 10),
    Sketcher.Constraint("Horizontal", 11),
    Sketcher.Constraint("Vertical", 12),
    Sketcher.Constraint("Horizontal", 13),
    Sketcher.Constraint("Vertical", 14),
    Sketcher.Constraint("Horizontal", 15),
    Sketcher.Constraint("Vertical", 16),
    Sketcher.Constraint("Horizontal", 17),
    Sketcher.Constraint("Vertical", 18),
    Sketcher.Constraint("Horizontal", 19),
    Sketcher.Constraint("Vertical", 20),
    Sketcher.Constraint("Horizontal", 21),
    Sketcher.Constraint("Vertical", 22),
    Sketcher.Constraint("Horizontal", 23),
    Sketcher.Constraint("Vertical", 24),
    Sketcher.Constraint("Horizontal", 25),
    Sketcher.Constraint("Vertical", 26),
    Sketcher.Constraint("Horizontal", 27),
    Sketcher.Constraint("Vertical", 28),
    Sketcher.Constraint("Horizontal", 29),
    Sketcher.Constraint("Vertical", 30),
    Sketcher.Constraint("Horizontal", 31),
    Sketcher.Constraint("Vertical", 32),
    Sketcher.Constraint("Horizontal", 33),
    Sketcher.Constraint("Vertical", 34),
    Sketcher.Constraint("Horizontal", 35),
    Sketcher.Constraint("Vertical", 36),
    Sketcher.Constraint("Horizontal", 37),
    Sketcher.Constraint("Vertical", 38),
    Sketcher.Constraint("Horizontal", 39),
    Sketcher.Constraint("Horizontal", 1, 2, 4, 2),
    Sketcher.Constraint("Horizontal", 3, 2, 6, 2),
    Sketcher.Constraint("Horizontal", 5, 2, 8, 2),
    Sketcher.Constraint("Horizontal", 7, 2, 10, 2),
    Sketcher.Constraint("Horizontal", 9, 2, 12, 2),
    Sketcher.Constraint("Horizontal", 11, 2, 14, 2),
    Sketcher.Constraint("Horizontal", 13, 2, 16, 2),
    Sketcher.Constraint("Horizontal", 15, 2, 18, 2),
    Sketcher.Constraint("Horizontal", 17, 2, 20, 2),
    Sketcher.Constraint("Horizontal", 19, 2, 22, 2),
    Sketcher.Constraint("Horizontal", 21, 2, 24, 2),
    Sketcher.Constraint("Horizontal", 23, 2, 26, 2),
    Sketcher.Constraint("Horizontal", 25, 2, 28, 2),
    Sketcher.Constraint("Horizontal", 27, 2, 30, 2),
    Sketcher.Constraint("Horizontal", 29, 2, 32, 2),
    Sketcher.Constraint("Horizontal", 31, 2, 34, 2),
    Sketcher.Constraint("Horizontal", 33, 2, 36, 2),
    Sketcher.Constraint("Horizontal", 35, 2, 38, 2),
    Sketcher.Constraint("Equal", 3, 5),
    Sketcher.Constraint("Equal", 7, 9),
    Sketcher.Constraint("Equal", 11, 13),
    Sketcher.Constraint("Equal", 15, 17),
    Sketcher.Constraint("Equal", 19, 21),
    Sketcher.Constraint("Equal", 23, 25),
    Sketcher.Constraint("Equal", 27, 29),
    Sketcher.Constraint("Equal", 31, 33),
    Sketcher.Constraint("Equal", 35, 37),
    Sketcher.Constraint("DistanceY", 0, 2, 0, 1, Q("45 mm")),
    Sketcher.Constraint("DistanceX", 1, 1, 1, 2, Q("6.3 mm")),
    Sketcher.Constraint("DistanceX", 4, 2, 0, 2, Q("12.2 mm")),
    Sketcher.Constraint("DistanceX", 8, 2, 4, 2, Q("12.2 mm")),
    Sketcher.Constraint("DistanceX", 12, 2, 8, 2, Q("12.2 mm")),
    Sketcher.Constraint("DistanceX", 16, 2, 12, 2, Q("12.2 mm")),
    Sketcher.Constraint("DistanceX", 20, 2, 16, 2, Q("12.2 mm")),
    Sketcher.Constraint("DistanceX", 24, 2, 20, 2, Q("12.2 mm")),
    Sketcher.Constraint("DistanceX", 28, 2, 24, 2, Q("12.2 mm")),
    Sketcher.Constraint("DistanceX", 32, 2, 28, 2, Q("12.2 mm")),
    Sketcher.Constraint("DistanceX", 36, 2, 32, 2, Q("12.2 mm")),
    Sketcher.Constraint("DistanceY", -1, 1, 0, 2, Q("63.95638 mm")),
    Sketcher.Constraint("DistanceX", -1, 1, 0, 2, Q("51.736467 mm")),
])
pocket3 = body6.newObject("PartDesign::Pocket", "Pocket002")
pocket3.Profile = sketch10
pocket3.Length = 25
pocket3.Reversed = True

doc.recompute()
